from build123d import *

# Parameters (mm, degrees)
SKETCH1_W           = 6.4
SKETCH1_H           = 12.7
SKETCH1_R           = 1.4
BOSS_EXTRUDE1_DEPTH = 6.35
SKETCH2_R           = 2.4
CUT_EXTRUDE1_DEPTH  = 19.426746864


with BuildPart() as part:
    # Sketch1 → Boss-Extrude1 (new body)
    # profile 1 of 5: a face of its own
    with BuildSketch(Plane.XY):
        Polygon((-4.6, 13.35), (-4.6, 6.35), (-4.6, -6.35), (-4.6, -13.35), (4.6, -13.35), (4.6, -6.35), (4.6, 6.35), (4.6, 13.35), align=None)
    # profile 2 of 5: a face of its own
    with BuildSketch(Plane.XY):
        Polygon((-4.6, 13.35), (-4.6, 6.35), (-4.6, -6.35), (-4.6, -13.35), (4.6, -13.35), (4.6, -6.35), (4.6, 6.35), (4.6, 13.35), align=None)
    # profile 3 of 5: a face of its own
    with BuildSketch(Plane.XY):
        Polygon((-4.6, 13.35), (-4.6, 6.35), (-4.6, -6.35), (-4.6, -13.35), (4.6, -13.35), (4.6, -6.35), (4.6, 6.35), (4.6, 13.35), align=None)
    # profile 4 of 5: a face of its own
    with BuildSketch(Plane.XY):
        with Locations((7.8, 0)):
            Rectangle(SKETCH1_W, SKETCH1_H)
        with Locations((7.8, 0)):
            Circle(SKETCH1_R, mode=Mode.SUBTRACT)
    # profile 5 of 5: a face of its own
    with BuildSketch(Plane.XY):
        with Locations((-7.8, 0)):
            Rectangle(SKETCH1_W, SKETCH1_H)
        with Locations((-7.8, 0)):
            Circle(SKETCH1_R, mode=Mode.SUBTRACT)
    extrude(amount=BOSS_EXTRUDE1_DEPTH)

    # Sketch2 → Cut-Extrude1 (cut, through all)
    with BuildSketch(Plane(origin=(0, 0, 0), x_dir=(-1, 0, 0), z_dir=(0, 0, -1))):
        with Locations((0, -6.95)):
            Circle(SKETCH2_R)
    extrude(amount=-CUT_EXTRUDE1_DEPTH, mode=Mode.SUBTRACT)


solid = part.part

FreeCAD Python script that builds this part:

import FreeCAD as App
import Part
import Sketcher
from FreeCAD import Vector
Q = App.Units.Quantity

doc = App.newDocument("Part")
body = doc.addObject("PartDesign::Body", "Body")

sketch1 = body.newObject("Sketcher::SketchObject", "Sketch")
sketch1.AttachmentSupport = (doc.getObject("XY_Plane"), [""])
sketch1.MapMode = "FlatFace"
sketch1.addGeometry([
    Part.LineSegment(Vector(-4.6, 13.3, 0), Vector(-4.6, 6.3, 0)),
    Part.LineSegment(Vector(-4.6, 6.3, 0), Vector(-11, 6.3, 0)),
    Part.LineSegment(Vector(-11, 6.3, 0), Vector(-11, -6.3, 0)),
    Part.LineSegment(Vector(-11, -6.3, 0), Vector(-4.6, -6.3, 0)),
    Part.LineSegment(Vector(-4.6, -6.3, 0), Vector(-4.6, -13.3, 0)),
    Part.LineSegment(Vector(-4.6, -13.3, 0), Vector(4.6, -13.3, 0)),
    Part.LineSegment(Vector(4.6, -13.3, 0), Vector(4.6, -6.3, 0)),
    Part.LineSegment(Vector(4.6, -6.3, 0), Vector(11, -6.3, 0)),
    Part.LineSegment(Vector(11, -6.3, 0), Vector(11, 6.3, 0)),
    Part.LineSegment(Vector(11, 6.3, 0), Vector(4.6, 6.3, 0)),
    Part.LineSegment(Vector(4.6, 6.3, 0), Vector(4.6, 13.3, 0)),
    Part.LineSegment(Vector(4.6, 13.3, 0), Vector(-4.6, 13.3, 0)),
    Part.Circle(Vector(-7.8, 0, 0), Vector(0, 0, 1), 1.4),
    Part.Circle(Vector(7.8, 0, 0), Vector(0, 0, 1), 1.4),
], False)
sketch1.addConstraint([
    Sketcher.Constraint("Coincident", 0, 2, 1, 1),
    Sketcher.Constraint("Coincident", 1, 2, 2, 1),
    Sketcher.Constraint("Coincident", 2, 2, 3, 1),
    Sketcher.Constraint("Coincident", 3, 2, 4, 1),
    Sketcher.Constraint("Coincident", 4, 2, 5, 1),
    Sketcher.Constraint("Coincident", 5, 2, 6, 1),
    Sketcher.Constraint("Coincident", 6, 2, 7, 1),
    Sketcher.Constraint("Coincident", 7, 2, 8, 1),
    Sketcher.Constraint("Coincident", 8, 2, 9, 1),
    Sketcher.Constraint("Coincident", 9, 2, 10, 1),
    Sketcher.Constraint("Coincident", 10, 2, 11, 1),
    Sketcher.Constraint("Coincident", 11, 2, 0, 1),
    Sketcher.Constraint("Vertical", 0),
    Sketcher.Constraint("Horizontal", 1),
    Sketcher.Constraint("Vertical", 2),
    Sketcher.Constraint("Horizontal", 3),
    Sketcher.Constraint("Vertical", 4),
    Sketcher.Constraint("Horizontal", 5),
    Sketcher.Constraint("Vertical", 6),
    Sketcher.Constraint("Horizontal", 7),
    Sketcher.Constraint("Vertical", 8),
    Sketcher.Constraint("Horizontal", 9),
    Sketcher.Constraint("Vertical", 10),
    Sketcher.Constraint("Horizontal", 11),
    Sketcher.Constraint("Equal", 12, 13),
    Sketcher.Constraint("Symmetric", 12, 3, 13, 3, -1, 1),
    Sketcher.Constraint("Symmetric", 0, 2, 6, 2, -1, 1),
    Sketcher.Constraint("Symmetric", 2, 2, 8, 2, -1, 1),
    Sketcher.Constraint("Symmetric", 4, 2, 10, 2, -1, 1),
    Sketcher.Constraint("Symmetric", 3, 2, 6, 2, -2),
    Sketcher.Constraint("PointOnObject", 12, 3, -1),
    Sketcher.Constraint("Diameter", 12, Q("2.8 mm")),
    Sketcher.Constraint("DistanceY", 0, 2, 0, 1, Q("7 mm")),
    Sketcher.Constraint("DistanceX", 1, 2, 1, 1, Q("6.4 mm")),
    Sketcher.Constraint("DistanceX", 5, 1, 5, 2, Q("9.2 mm")),
    Sketcher.Constraint("DistanceY", 2, 2, 2, 1, Q("12.7 mm")),
    Sketcher.Constraint("DistanceX", 12, 3, -1, 1, Q("7.8 mm")),
])
pad1 = body.newObject("PartDesign::Pad", "Pad")
pad1.Profile = sketch1
pad1.Length = 6.35

sketch2 = body.newObject("Sketcher::SketchObject", "Sketch001")
sketch2.AttachmentSupport = (doc.getObject("XY_Plane"), [""])
sketch2.MapMode = "FlatFace"
sketch2.addGeometry(Part.Circle(Vector(0, -7, 0), Vector(0, 0, 1), 2.4), False)
sketch2.addConstraint([
    Sketcher.Constraint("PointOnObject", 0, 3, -2),
    Sketcher.Constraint("Diameter", 0, Q("4.8 mm")),
    Sketcher.Constraint("DistanceY", 0, 3, -1, 1, Q("6.95 mm")),
])
pocket1 = body.newObject("PartDesign::Pocket", "Pocket")
pocket1.Profile = sketch2
pocket1.Type = "ThroughAll"
pocket1.Reversed = True

doc.recompute()
